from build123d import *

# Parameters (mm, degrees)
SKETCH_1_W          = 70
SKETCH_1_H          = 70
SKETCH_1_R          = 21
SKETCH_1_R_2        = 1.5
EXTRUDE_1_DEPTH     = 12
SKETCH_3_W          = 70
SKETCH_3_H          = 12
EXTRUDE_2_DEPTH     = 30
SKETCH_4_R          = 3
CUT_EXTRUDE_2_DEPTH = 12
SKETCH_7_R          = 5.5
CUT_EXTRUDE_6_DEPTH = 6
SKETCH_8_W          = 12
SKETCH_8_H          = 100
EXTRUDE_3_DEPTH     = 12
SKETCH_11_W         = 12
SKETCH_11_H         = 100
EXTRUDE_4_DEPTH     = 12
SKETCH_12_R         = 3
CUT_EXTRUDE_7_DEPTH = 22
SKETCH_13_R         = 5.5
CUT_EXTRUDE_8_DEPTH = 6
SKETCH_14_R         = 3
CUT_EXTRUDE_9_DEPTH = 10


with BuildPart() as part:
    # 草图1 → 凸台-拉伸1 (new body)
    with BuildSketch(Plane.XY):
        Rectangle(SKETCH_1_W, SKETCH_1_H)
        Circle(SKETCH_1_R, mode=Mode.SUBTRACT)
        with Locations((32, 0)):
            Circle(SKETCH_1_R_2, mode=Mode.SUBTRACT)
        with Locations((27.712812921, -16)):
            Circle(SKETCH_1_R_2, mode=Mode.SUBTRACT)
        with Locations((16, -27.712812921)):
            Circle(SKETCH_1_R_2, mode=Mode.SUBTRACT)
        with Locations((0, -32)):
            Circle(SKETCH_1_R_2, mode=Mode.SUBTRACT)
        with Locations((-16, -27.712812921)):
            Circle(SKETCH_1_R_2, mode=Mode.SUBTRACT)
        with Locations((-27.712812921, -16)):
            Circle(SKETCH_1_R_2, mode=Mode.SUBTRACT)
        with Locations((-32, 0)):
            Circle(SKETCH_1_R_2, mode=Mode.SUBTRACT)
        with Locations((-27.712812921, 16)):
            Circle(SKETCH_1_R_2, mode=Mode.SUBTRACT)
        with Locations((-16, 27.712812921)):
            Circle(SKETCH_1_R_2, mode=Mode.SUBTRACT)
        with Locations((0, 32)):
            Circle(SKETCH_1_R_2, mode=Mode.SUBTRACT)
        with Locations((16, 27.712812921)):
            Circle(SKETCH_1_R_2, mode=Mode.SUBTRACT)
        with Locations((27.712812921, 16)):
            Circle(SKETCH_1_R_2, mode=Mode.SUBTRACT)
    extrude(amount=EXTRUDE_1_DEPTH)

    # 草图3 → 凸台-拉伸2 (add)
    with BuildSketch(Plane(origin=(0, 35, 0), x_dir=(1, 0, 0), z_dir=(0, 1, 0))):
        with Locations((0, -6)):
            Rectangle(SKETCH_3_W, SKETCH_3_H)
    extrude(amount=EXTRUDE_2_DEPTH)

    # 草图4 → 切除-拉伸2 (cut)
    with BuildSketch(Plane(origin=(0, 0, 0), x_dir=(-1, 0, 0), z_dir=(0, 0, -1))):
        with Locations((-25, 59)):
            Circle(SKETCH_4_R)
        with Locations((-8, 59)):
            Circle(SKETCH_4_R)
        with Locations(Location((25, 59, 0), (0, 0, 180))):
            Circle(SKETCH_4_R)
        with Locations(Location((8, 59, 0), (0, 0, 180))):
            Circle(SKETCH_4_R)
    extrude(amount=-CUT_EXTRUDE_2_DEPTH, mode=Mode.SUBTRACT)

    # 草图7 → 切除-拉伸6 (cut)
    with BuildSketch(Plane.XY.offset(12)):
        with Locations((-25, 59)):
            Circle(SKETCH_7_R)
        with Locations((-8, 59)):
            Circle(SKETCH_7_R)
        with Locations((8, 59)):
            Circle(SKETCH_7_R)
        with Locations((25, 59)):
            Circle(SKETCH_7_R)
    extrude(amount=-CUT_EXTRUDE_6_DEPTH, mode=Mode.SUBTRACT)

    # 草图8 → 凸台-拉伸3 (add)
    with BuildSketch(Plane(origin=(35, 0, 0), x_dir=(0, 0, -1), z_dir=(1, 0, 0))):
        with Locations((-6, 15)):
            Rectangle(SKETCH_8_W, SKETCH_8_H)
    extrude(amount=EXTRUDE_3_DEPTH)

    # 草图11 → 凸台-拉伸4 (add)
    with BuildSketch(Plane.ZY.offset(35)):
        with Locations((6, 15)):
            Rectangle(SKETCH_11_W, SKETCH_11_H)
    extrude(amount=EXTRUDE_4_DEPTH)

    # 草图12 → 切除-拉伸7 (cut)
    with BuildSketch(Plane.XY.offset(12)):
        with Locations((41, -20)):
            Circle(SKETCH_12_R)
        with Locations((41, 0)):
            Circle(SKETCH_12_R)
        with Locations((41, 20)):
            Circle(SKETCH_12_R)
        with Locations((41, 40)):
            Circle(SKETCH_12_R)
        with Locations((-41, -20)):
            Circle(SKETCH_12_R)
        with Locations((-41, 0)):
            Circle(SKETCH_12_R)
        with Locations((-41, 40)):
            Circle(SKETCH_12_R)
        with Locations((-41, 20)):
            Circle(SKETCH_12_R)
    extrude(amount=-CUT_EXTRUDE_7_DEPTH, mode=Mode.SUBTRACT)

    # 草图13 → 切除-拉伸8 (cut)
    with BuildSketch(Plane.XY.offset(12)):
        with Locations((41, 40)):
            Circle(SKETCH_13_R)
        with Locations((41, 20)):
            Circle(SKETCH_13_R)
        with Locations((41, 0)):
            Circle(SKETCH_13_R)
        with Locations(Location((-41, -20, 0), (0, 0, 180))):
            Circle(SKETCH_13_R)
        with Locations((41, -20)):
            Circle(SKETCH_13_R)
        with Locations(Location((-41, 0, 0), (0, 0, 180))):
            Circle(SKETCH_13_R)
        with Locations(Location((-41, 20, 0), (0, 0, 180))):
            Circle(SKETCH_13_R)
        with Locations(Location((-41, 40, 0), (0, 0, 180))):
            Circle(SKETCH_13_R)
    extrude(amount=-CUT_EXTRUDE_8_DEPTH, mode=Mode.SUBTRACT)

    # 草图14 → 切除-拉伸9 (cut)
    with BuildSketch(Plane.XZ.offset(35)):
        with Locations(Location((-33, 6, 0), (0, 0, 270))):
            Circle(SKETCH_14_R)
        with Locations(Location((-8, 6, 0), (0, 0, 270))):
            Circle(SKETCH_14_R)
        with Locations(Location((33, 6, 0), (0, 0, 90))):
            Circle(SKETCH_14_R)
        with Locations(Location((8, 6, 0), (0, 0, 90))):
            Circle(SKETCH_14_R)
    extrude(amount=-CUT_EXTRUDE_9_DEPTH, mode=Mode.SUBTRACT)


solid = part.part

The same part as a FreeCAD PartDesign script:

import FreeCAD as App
import Part
import Sketcher
from FreeCAD import Vector

doc = App.newDocument("Part")
body = doc.addObject("PartDesign::Body", "Body")

# Sketch on XY plane
sketch1 = body.newObject("Sketcher::SketchObject", "Sketch")
sketch1.AttachmentSupport = (doc.getObject("XY_Plane"), [""])
sketch1.MapMode = "FlatFace"
sketch1.addGeometry(Part.LineSegment(Vector(-35, 35, 0), Vector(-35, -35, 0)), False)
sketch1.addGeometry(Part.LineSegment(Vector(-35, -35, 0), Vector(35, -35, 0)), False)
sketch1.addGeometry(Part.LineSegment(Vector(35, -35, 0), Vector(35, 35, 0)), False)
sketch1.addGeometry(Part.LineSegment(Vector(35, 35, 0), Vector(-35, 35, 0)), False)
sketch1.addGeometry(Part.Circle(Vector(-16, -27.7, 0), Vector(0, 0, 1), 1.5), False)
sketch1.addGeometry(Part.Circle(Vector(-27.7, -16, 0), Vector(0, 0, 1), 1.5), False)
sketch1.addGeometry(Part.Circle(Vector(0, -32, 0), Vector(0, 0, 1), 1.5), False)
sketch1.addGeometry(Part.Circle(Vector(16, -27.7, 0), Vector(0, 0, 1), 1.5), False)
sketch1.addGeometry(Part.Circle(Vector(27.7, -16, 0), Vector(0, 0, 1), 1.5), False)
sketch1.addGeometry(Part.Circle(Vector(-32, 0, 0), Vector(0, 0, 1), 1.5), False)
sketch1.addGeometry(Part.Circle(Vector(-27.7, 16, 0), Vector(0, 0, 1), 1.5), False)
sketch1.addGeometry(Part.Circle(Vector(-16, 27.7, 0), Vector(0, 0, 1), 1.5), False)
sketch1.addGeometry(Part.Circle(Vector(0, 0, 0), Vector(0, 0, 1), 21), False)
sketch1.addGeometry(Part.Circle(Vector(32, 0, 0), Vector(0, 0, 1), 1.5), False)
sketch1.addGeometry(Part.Circle(Vector(27.7, 16, 0), Vector(0, 0, 1), 1.5), False)
sketch1.addGeometry(Part.Circle(Vector(0, 32, 0), Vector(0, 0, 1), 1.5), False)
sketch1.addGeometry(Part.Circle(Vector(16, 27.7, 0), Vector(0, 0, 1), 1.5), False)
sketch1.addConstraint(Sketcher.Constraint("Coincident", 0, 2, 1, 1))
sketch1.addConstraint(Sketcher.Constraint("Coincident", 1, 2, 2, 1))
sketch1.addConstraint(Sketcher.Constraint("Coincident", 2, 2, 3, 1))
sketch1.addConstraint(Sketcher.Constraint("Coincident", 3, 2, 0, 1))
sketch1.addConstraint(Sketcher.Constraint("Vertical", 0))
sketch1.addConstraint(Sketcher.Constraint("Horizontal", 1))
sketch1.addConstraint(Sketcher.Constraint("Vertical", 2))
sketch1.addConstraint(Sketcher.Constraint("Horizontal", 3))
sketch1.addConstraint(Sketcher.Constraint("Coincident", 12, 3, -1, 1))
sketch1.addConstraint(Sketcher.Constraint("Equal", 4, 5))
sketch1.addConstraint(Sketcher.Constraint("Equal", 5, 6))
sketch1.addConstraint(Sketcher.Constraint("Equal", 6, 7))
sketch1.addConstraint(Sketcher.Constraint("Equal", 7, 8))
sketch1.addConstraint(Sketcher.Constraint("Equal", 8, 9))
sketch1.addConstraint(Sketcher.Constraint("Equal", 9, 10))
sketch1.addConstraint(Sketcher.Constraint("Equal", 10, 11))
sketch1.addConstraint(Sketcher.Constraint("Equal", 11, 13))
sketch1.addConstraint(Sketcher.Constraint("Equal", 13, 14))
sketch1.addConstraint(Sketcher.Constraint("Equal", 14, 15))
sketch1.addConstraint(Sketcher.Constraint("Equal", 15, 16))
sketch1.addConstraint(Sketcher.Constraint("Symmetric", 8, 3, 10, 3, -1, 1))
sketch1.addConstraint(Sketcher.Constraint("Symmetric", 7, 3, 11, 3, -1, 1))
sketch1.addConstraint(Sketcher.Constraint("Symmetric", 9, 3, 13, 3, -1, 1))
sketch1.addConstraint(Sketcher.Constraint("Symmetric", 5, 3, 14, 3, -1, 1))
sketch1.addConstraint(Sketcher.Constraint("Symmetric", 6, 3, 15, 3, -1, 1))
sketch1.addConstraint(Sketcher.Constraint("Symmetric", 4, 3, 16, 3, -1, 1))
sketch1.addConstraint(Sketcher.Constraint("Symmetric", 0, 2, 2, 2, -1, 1))
sketch1.addConstraint(Sketcher.Constraint("Symmetric", 4, 3, 7, 3, -2))
sketch1.addConstraint(Sketcher.Constraint("Symmetric", 5, 3, 8, 3, -2))
sketch1.addConstraint(Sketcher.Constraint("PointOnObject", 6, 3, -2))
sketch1.addConstraint(Sketcher.Constraint("PointOnObject", 9, 3, -1))
sketch1.addConstraint(Sketcher.Constraint("Equal", 3, 0))
sketch1.addConstraint(Sketcher.Constraint("Diameter", 4, 3.0))
sketch1.addConstraint(Sketcher.Constraint("Diameter", 12, 42.0))
sketch1.addConstraint(Sketcher.Constraint("DistanceX", 1, 1, 1, 2, 70.0))
sketch1.addConstraint(Sketcher.Constraint("DistanceX", 4, 3, -1, 1, 16.0))
sketch1.addConstraint(Sketcher.Constraint("DistanceY", 5, 3, -1, 1, 16.0))
sketch1.addConstraint(Sketcher.Constraint("DistanceY", 6, 3, -1, 1, 32.0))
sketch1.addConstraint(Sketcher.Constraint("DistanceX", 9, 3, -1, 1, 32.0))
sketch1.addConstraint(Sketcher.Constraint("DistanceY", 4, 3, -1, 1, 27.712813))
sketch1.addConstraint(Sketcher.Constraint("DistanceX", 5, 3, -1, 1, 27.712813))
pad1 = body.newObject("PartDesign::Pad", "Pad")
pad1.Profile = sketch1
pad1.Length = 12

# Sketch on XZ plane
sketch2 = body.newObject("Sketcher::SketchObject", "Sketch001")
sketch2.AttachmentSupport = (doc.getObject("XZ_Plane"), [""])
sketch2.MapMode = "FlatFace"
sketch2.AttachmentOffset = App.Placement(Vector(0, 0, -35), App.Rotation())
sketch2.addGeometry(Part.LineSegment(Vector(-35, 0, 0), Vector(-35, 12, 0)), False)
sketch2.addGeometry(Part.LineSegment(Vector(-35, 12, 0), Vector(35, 12, 0)), False)
sketch2.addGeometry(Part.LineSegment(Vector(35, 12, 0), Vector(35, 0, 0)), False)
sketch2.addGeometry(Part.LineSegment(Vector(35, 0, 0), Vector(-35, 0, 0)), False)
sketch2.addConstraint(Sketcher.Constraint("Coincident", 0, 2, 1, 1))
sketch2.addConstraint(Sketcher.Constraint("Coincident", 1, 2, 2, 1))
sketch2.addConstraint(Sketcher.Constraint("Coincident", 2, 2, 3, 1))
sketch2.addConstraint(Sketcher.Constraint("Coincident", 3, 2, 0, 1))
sketch2.addConstraint(Sketcher.Constraint("Vertical", 0))
sketch2.addConstraint(Sketcher.Constraint("Horizontal", 1))
sketch2.addConstraint(Sketcher.Constraint("Vertical", 2))
sketch2.addConstraint(Sketcher.Constraint("Horizontal", 3))
sketch2.addConstraint(Sketcher.Constraint("Symmetric", 2, 2, 3, 2, -1, 1))
sketch2.addConstraint(Sketcher.Constraint("DistanceX", 1, 1, 1, 2, 70.0))
sketch2.addConstraint(Sketcher.Constraint("DistanceY", 0, 1, 0, 2, 12.0))
pad2 = body.newObject("PartDesign::Pad", "Pad001")
pad2.Profile = sketch2
pad2.Length = 30
pad2.Reversed = True

# Sketch on XY plane
sketch3 = body.newObject("Sketcher::SketchObject", "Sketch002")
sketch3.AttachmentSupport = (doc.getObject("XY_Plane"), [""])
sketch3.MapMode = "FlatFace"
sketch3.addGeometry(Part.Circle(Vector(25, 59, 0), Vector(0, 0, 1), 3), False)
sketch3.addGeometry(Part.Circle(Vector(8, 59, 0), Vector(0, 0, 1), 3), False)
sketch3.addGeometry(Part.Circle(Vector(-25, 59, 0), Vector(0, 0, 1), 3), False)
sketch3.addGeometry(Part.Circle(Vector(-8, 59, 0), Vector(0, 0, 1), 3), False)
sketch3.addConstraint(Sketcher.Constraint("Equal", 0, 1))
sketch3.addConstraint(Sketcher.Constraint("Equal", 1, 2))
sketch3.addConstraint(Sketcher.Constraint("Equal", 2, 3))
sketch3.addConstraint(Sketcher.Constraint("Symmetric", 0, 3, 2, 3, -2))
sketch3.addConstraint(Sketcher.Constraint("Symmetric", 1, 3, 3, 3, -2))
sketch3.addConstraint(Sketcher.Constraint("Horizontal", 0, 3, 1, 3))
sketch3.addConstraint(Sketcher.Constraint("Diameter", 0, 6.0))
sketch3.addConstraint(Sketcher.Constraint("DistanceX", -1, 1, 0, 3, 25.0))
sketch3.addConstraint(Sketcher.Constraint("DistanceY", -1, 1, 0, 3, 59.0))
sketch3.addConstraint(Sketcher.Constraint("DistanceX", -1, 1, 1, 3, 8.0))
pocket1 = body.newObject("PartDesign::Pocket", "Pocket")
pocket1.Profile = sketch3
pocket1.Length = 12
pocket1.Reversed = True

# Sketch on XY plane
sketch4 = body.newObject("Sketcher::SketchObject", "Sketch003")
sketch4.AttachmentSupport = (doc.getObject("XY_Plane"), [""])
sketch4.MapMode = "FlatFace"
sketch4.AttachmentOffset = App.Placement(Vector(0, 0, 12), App.Rotation())
sketch4.addGeometry(Part.Circle(Vector(-25, 59, 0), Vector(0, 0, 1), 6), False)
sketch4.addGeometry(Part.Circle(Vector(-8, 59, 0), Vector(0, 0, 1), 6), False)
sketch4.addGeometry(Part.Circle(Vector(8, 59, 0), Vector(0, 0, 1), 6), False)
sketch4.addGeometry(Part.Circle(Vector(25, 59, 0), Vector(0, 0, 1), 6), False)
sketch4.addConstraint(Sketcher.Constraint("Equal", 0, 1))
sketch4.addConstraint(Sketcher.Constraint("Equal", 1, 2))
sketch4.addConstraint(Sketcher.Constraint("Equal", 2, 3))
sketch4.addConstraint(Sketcher.Constraint("Symmetric", 1, 3, 2, 3, -2))
sketch4.addConstraint(Sketcher.Constraint("Symmetric", 0, 3, 3, 3, -2))
sketch4.addConstraint(Sketcher.Constraint("Horizontal", 0, 3, 1, 3))
sketch4.addConstraint(Sketcher.Constraint("Diameter", 0, 11.0))
sketch4.addConstraint(Sketcher.Constraint("DistanceX", 0, 3, -1, 1, 25.0))
sketch4.addConstraint(Sketcher.Constraint("DistanceY", -1, 1, 0, 3, 59.0))
sketch4.addConstraint(Sketcher.Constraint("DistanceX", 1, 3, -1, 1, 8.0))
pocket2 = body.newObject("PartDesign::Pocket", "Pocket001")
pocket2.Profile = sketch4
pocket2.Length = 6

# Sketch on YZ plane
sketch5 = body.newObject("Sketcher::SketchObject", "Sketch004")
sketch5.AttachmentSupport = (doc.getObject("YZ_Plane"), [""])
sketch5.MapMode = "FlatFace"
sketch5.AttachmentOffset = App.Placement(Vector(0, 0, 35), App.Rotation())
sketch5.addGeometry(Part.LineSegment(Vector(65, 12, 0), Vector(-35, 12, 0)), False)
sketch5.addGeometry(Part.LineSegment(Vector(-35, 12, 0), Vector(-35, 0, 0)), False)
sketch5.addGeometry(Part.LineSegment(Vector(-35, 0, 0), Vector(65, 0, 0)), False)
sketch5.addGeometry(Part.LineSegment(Vector(65, 0, 0), Vector(65, 12, 0)), False)
sketch5.addConstraint(Sketcher.Constraint("Coincident", 0, 2, 1, 1))
sketch5.addConstraint(Sketcher.Constraint("Coincident", 1, 2, 2, 1))
sketch5.addConstraint(Sketcher.Constraint("Coincident", 2, 2, 3, 1))
sketch5.addConstraint(Sketcher.Constraint("Coincident", 3, 2, 0, 1))
sketch5.addConstraint(Sketcher.Constraint("Horizontal", 0))
sketch5.addConstraint(Sketcher.Constraint("Vertical", 1))
sketch5.addConstraint(Sketcher.Constraint("Horizontal", 2))
sketch5.addConstraint(Sketcher.Constraint("Vertical", 3))
sketch5.addConstraint(Sketcher.Constraint("PointOnObject", 1, 2, -1))
sketch5.addConstraint(Sketcher.Constraint("DistanceX", 0, 2, 0, 1, 100.0))
sketch5.addConstraint(Sketcher.Constraint("DistanceY", 1, 2, 1, 1, 12.0))
sketch5.addConstraint(Sketcher.Constraint("DistanceX", 0, 2, -1, 1, 35.0))
pad3 = body.newObject("PartDesign::Pad", "Pad002")
pad3.Profile = sketch5
pad3.Length = 12

# Sketch on YZ plane
sketch6 = body.newObject("Sketcher::SketchObject", "Sketch005")
sketch6.AttachmentSupport = (doc.getObject("YZ_Plane"), [""])
sketch6.MapMode = "FlatFace"
sketch6.AttachmentOffset = App.Placement(Vector(0, 0, -35), App.Rotation())
sketch6.addGeometry(Part.LineSegment(Vector(65, 0, 0), Vector(-35, 0, 0)), False)
sketch6.addGeometry(Part.LineSegment(Vector(-35, 0, 0), Vector(-35, 12, 0)), False)
sketch6.addGeometry(Part.LineSegment(Vector(-35, 12, 0), Vector(65, 12, 0)), False)
sketch6.addGeometry(Part.LineSegment(Vector(65, 12, 0), Vector(65, 0, 0)), False)
sketch6.addConstraint(Sketcher.Constraint("Coincident", 0, 2, 1, 1))
sketch6.addConstraint(Sketcher.Constraint("Coincident", 1, 2, 2, 1))
sketch6.addConstraint(Sketcher.Constraint("Coincident", 2, 2, 3, 1))
sketch6.addConstraint(Sketcher.Constraint("Coincident", 3, 2, 0, 1))
sketch6.addConstraint(Sketcher.Constraint("Horizontal", 0))
sketch6.addConstraint(Sketcher.Constraint("Vertical", 1))
sketch6.addConstraint(Sketcher.Constraint("Horizontal", 2))
sketch6.addConstraint(Sketcher.Constraint("Vertical", 3))
sketch6.addConstraint(Sketcher.Constraint("PointOnObject", 0, 2, -1))
sketch6.addConstraint(Sketcher.Constraint("DistanceX", 0, 2, 0, 1, 100.0))
sketch6.addConstraint(Sketcher.Constraint("DistanceY", 1, 1, 1, 2, 12.0))
sketch6.addConstraint(Sketcher.Constraint("DistanceX", 0, 2, -1, 1, 35.0))
pad4 = body.newObject("PartDesign::Pad", "Pad003")
pad4.Profile = sketch6
pad4.Length = 12
pad4.Reversed = True

# Sketch on XY plane
sketch7 = body.newObject("Sketcher::SketchObject", "Sketch006")
sketch7.AttachmentSupport = (doc.getObject("XY_Plane"), [""])
sketch7.MapMode = "FlatFace"
sketch7.AttachmentOffset = App.Placement(Vector(0, 0, 12), App.Rotation())
sketch7.addGeometry(Part.Circle(Vector(41, -20, 0), Vector(0, 0, 1), 3), False)
sketch7.addGeometry(Part.Circle(Vector(41, 0, 0), Vector(0, 0, 1), 3), False)
sketch7.addGeometry(Part.Circle(Vector(41, 20, 0), Vector(0, 0, 1), 3), False)
sketch7.addGeometry(Part.Circle(Vector(41, 40, 0), Vector(0, 0, 1), 3), False)
sketch7.addGeometry(Part.Circle(Vector(-41, -20, 0), Vector(0, 0, 1), 3), False)
sketch7.addGeometry(Part.Circle(Vector(-41, 0, 0), Vector(0, 0, 1), 3), False)
sketch7.addGeometry(Part.Circle(Vector(-41, 40, 0), Vector(0, 0, 1), 3), False)
sketch7.addGeometry(Part.Circle(Vector(-41, 20, 0), Vector(0, 0, 1), 3), False)
sketch7.addConstraint(Sketcher.Constraint("Equal", 0, 1))
sketch7.addConstraint(Sketcher.Constraint("Equal", 1, 2))
sketch7.addConstraint(Sketcher.Constraint("Equal", 2, 3))
sketch7.addConstraint(Sketcher.Constraint("Equal", 3, 4))
sketch7.addConstraint(Sketcher.Constraint("Equal", 4, 5))
sketch7.addConstraint(Sketcher.Constraint("Equal", 5, 6))
sketch7.addConstraint(Sketcher.Constraint("Equal", 6, 7))
sketch7.addConstraint(Sketcher.Constraint("Symmetric", 2, 3, 4, 3, -1, 1))
sketch7.addConstraint(Sketcher.Constraint("Symmetric", 1, 3, 5, 3, -1, 1))
sketch7.addConstraint(Sketcher.Constraint("Symmetric", 0, 3, 7, 3, -1, 1))
sketch7.addConstraint(Sketcher.Constraint("Symmetric", 0, 3, 4, 3, -2))
sketch7.addConstraint(Sketcher.Constraint("Symmetric", 3, 3, 6, 3, -2))
sketch7.addConstraint(Sketcher.Constraint("PointOnObject", 1, 3, -1))
sketch7.addConstraint(Sketcher.Constraint("Vertical", 0, 3, 1, 3))
sketch7.addConstraint(Sketcher.Constraint("Vertical", 2, 3, 3, 3))
sketch7.addConstraint(Sketcher.Constraint("Diameter", 0, 6.0))
sketch7.addConstraint(Sketcher.Constraint("DistanceX", -1, 1, 0, 3, 41.0))
sketch7.addConstraint(Sketcher.Constraint("DistanceY", 0, 3, -1, 1, 20.0))
sketch7.addConstraint(Sketcher.Constraint("DistanceY", -1, 1, 3, 3, 40.0))
pocket3 = body.newObject("PartDesign::Pocket", "Pocket002")
pocket3.Profile = sketch7
pocket3.Length = 22

# Sketch on XY plane
sketch8 = body.newObject("Sketcher::SketchObject", "Sketch007")
sketch8.AttachmentSupport = (doc.getObject("XY_Plane"), [""])
sketch8.MapMode = "FlatFace"
sketch8.AttachmentOffset = App.Placement(Vector(0, 0, 12), App.Rotation())
sketch8.addGeometry(Part.Circle(Vector(41, 40, 0), Vector(0, 0, 1), 6), False)
sketch8.addGeometry(Part.Circle(Vector(41, 20, 0), Vector(0, 0, 1), 6), False)
sketch8.addGeometry(Part.Circle(Vector(41, 0, 0), Vector(0, 0, 1), 6), False)
sketch8.addGeometry(Part.Circle(Vector(-41, -20, 0), Vector(0, 0, 1), 6), False)
sketch8.addGeometry(Part.Circle(Vector(41, -20, 0), Vector(0, 0, 1), 6), False)
sketch8.addGeometry(Part.Circle(Vector(-41, 0, 0), Vector(0, 0, 1), 6), False)
sketch8.addGeometry(Part.Circle(Vector(-41, 20, 0), Vector(0, 0, 1), 6), False)
sketch8.addGeometry(Part.Circle(Vector(-41, 40, 0), Vector(0, 0, 1), 6), False)
sketch8.addConstraint(Sketcher.Constraint("Equal", 0, 1))
sketch8.addConstraint(Sketcher.Constraint("Equal", 1, 2))
sketch8.addConstraint(Sketcher.Constraint("Equal", 2, 3))
sketch8.addConstraint(Sketcher.Constraint("Equal", 3, 4))
sketch8.addConstraint(Sketcher.Constraint("Equal", 4, 5))
sketch8.addConstraint(Sketcher.Constraint("Equal", 5, 6))
sketch8.addConstraint(Sketcher.Constraint("Equal", 6, 7))
sketch8.addConstraint(Sketcher.Constraint("Symmetric", 1, 3, 3, 3, -1, 1))
sketch8.addConstraint(Sketcher.Constraint("Symmetric", 2, 3, 5, 3, -1, 1))
sketch8.addConstraint(Sketcher.Constraint("Symmetric", 4, 3, 6, 3, -1, 1))
sketch8.addConstraint(Sketcher.Constraint("Symmetric", 3, 3, 4, 3, -2))
sketch8.addConstraint(Sketcher.Constraint("Symmetric", 0, 3, 7, 3, -2))
sketch8.addConstraint(Sketcher.Constraint("PointOnObject", 2, 3, -1))
sketch8.addConstraint(Sketcher.Constraint("Vertical", 0, 3, 1, 3))
sketch8.addConstraint(Sketcher.Constraint("Vertical", 1, 3, 2, 3))
sketch8.addConstraint(Sketcher.Constraint("Diameter", 0, 11.0))
sketch8.addConstraint(Sketcher.Constraint("DistanceX", -1, 1, 0, 3, 41.0))
sketch8.addConstraint(Sketcher.Constraint("DistanceY", -1, 1, 0, 3, 40.0))
sketch8.addConstraint(Sketcher.Constraint("DistanceY", -1, 1, 1, 3, 20.0))
pocket4 = body.newObject("PartDesign::Pocket", "Pocket003")
pocket4.Profile = sketch8
pocket4.Length = 6

# Sketch on XZ plane
sketch9 = body.newObject("Sketcher::SketchObject", "Sketch008")
sketch9.AttachmentSupport = (doc.getObject("XZ_Plane"), [""])
sketch9.MapMode = "FlatFace"
sketch9.AttachmentOffset = App.Placement(Vector(0, 0, 35), App.Rotation())
sketch9.addGeometry(Part.Circle(Vector(-33, 6, 0), Vector(0, 0, 1), 3), False)
sketch9.addGeometry(Part.Circle(Vector(-8, 6, 0), Vector(0, 0, 1), 3), False)
sketch9.addGeometry(Part.Circle(Vector(33, 6, 0), Vector(0, 0, 1), 3), False)
sketch9.addGeometry(Part.Circle(Vector(8, 6, 0), Vector(0, 0, 1), 3), False)
sketch9.addConstraint(Sketcher.Constraint("Equal", 0, 1))
sketch9.addConstraint(Sketcher.Constraint("Equal", 1, 2))
sketch9.addConstraint(Sketcher.Constraint("Equal", 2, 3))
sketch9.addConstraint(Sketcher.Constraint("Symmetric", 0, 3, 2, 3, -2))
sketch9.addConstraint(Sketcher.Constraint("Symmetric", 1, 3, 3, 3, -2))
sketch9.addConstraint(Sketcher.Constraint("Horizontal", 0, 3, 1, 3))
sketch9.addConstraint(Sketcher.Constraint("Diameter", 0, 6.0))
sketch9.addConstraint(Sketcher.Constraint("DistanceX", 0, 3, -1, 1, 33.0))
sketch9.addConstraint(Sketcher.Constraint("DistanceY", -1, 1, 0, 3, 6.0))
sketch9.addConstraint(Sketcher.Constraint("DistanceX", 1, 3, -1, 1, 8.0))
pocket5 = body.newObject("PartDesign::Pocket", "Pocket004")
pocket5.Profile = sketch9
pocket5.Length = 10

doc.recompute()
